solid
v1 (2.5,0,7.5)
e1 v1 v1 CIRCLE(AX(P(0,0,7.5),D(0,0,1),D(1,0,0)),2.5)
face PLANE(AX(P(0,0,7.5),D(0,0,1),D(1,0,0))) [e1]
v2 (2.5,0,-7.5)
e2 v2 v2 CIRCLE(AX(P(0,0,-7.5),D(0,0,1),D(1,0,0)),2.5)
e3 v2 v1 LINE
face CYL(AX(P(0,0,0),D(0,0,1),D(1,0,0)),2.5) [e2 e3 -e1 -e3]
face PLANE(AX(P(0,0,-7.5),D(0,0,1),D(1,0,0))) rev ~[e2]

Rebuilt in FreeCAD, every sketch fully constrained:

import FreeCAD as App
import Part
import Sketcher

V = App.Vector
Q = App.Units.Quantity

doc = App.newDocument("Part")
body = doc.addObject("PartDesign::Body", "Body")

# Sketch on XY plane
sketch1 = body.newObject("Sketcher::SketchObject", "Sketch")
sketch1.AttachmentSupport = (doc.getObject("XY_Plane"), [""])
sketch1.MapMode = "FlatFace"
sketch1.addGeometry(Part.Circle(V(0, 0, 0), V(0, 0, 1), 2.5), False)
sketch1.addConstraint(Sketcher.Constraint("Coincident", 0, 3, -1, 1))
sketch1.addConstraint(Sketcher.Constraint("Diameter", 0, Q("5 mm")))
pad1 = body.newObject("PartDesign::Pad", "Pad")
pad1.Profile = sketch1
pad1.Length = 15
pad1.Midplane = True

doc.recompute()
